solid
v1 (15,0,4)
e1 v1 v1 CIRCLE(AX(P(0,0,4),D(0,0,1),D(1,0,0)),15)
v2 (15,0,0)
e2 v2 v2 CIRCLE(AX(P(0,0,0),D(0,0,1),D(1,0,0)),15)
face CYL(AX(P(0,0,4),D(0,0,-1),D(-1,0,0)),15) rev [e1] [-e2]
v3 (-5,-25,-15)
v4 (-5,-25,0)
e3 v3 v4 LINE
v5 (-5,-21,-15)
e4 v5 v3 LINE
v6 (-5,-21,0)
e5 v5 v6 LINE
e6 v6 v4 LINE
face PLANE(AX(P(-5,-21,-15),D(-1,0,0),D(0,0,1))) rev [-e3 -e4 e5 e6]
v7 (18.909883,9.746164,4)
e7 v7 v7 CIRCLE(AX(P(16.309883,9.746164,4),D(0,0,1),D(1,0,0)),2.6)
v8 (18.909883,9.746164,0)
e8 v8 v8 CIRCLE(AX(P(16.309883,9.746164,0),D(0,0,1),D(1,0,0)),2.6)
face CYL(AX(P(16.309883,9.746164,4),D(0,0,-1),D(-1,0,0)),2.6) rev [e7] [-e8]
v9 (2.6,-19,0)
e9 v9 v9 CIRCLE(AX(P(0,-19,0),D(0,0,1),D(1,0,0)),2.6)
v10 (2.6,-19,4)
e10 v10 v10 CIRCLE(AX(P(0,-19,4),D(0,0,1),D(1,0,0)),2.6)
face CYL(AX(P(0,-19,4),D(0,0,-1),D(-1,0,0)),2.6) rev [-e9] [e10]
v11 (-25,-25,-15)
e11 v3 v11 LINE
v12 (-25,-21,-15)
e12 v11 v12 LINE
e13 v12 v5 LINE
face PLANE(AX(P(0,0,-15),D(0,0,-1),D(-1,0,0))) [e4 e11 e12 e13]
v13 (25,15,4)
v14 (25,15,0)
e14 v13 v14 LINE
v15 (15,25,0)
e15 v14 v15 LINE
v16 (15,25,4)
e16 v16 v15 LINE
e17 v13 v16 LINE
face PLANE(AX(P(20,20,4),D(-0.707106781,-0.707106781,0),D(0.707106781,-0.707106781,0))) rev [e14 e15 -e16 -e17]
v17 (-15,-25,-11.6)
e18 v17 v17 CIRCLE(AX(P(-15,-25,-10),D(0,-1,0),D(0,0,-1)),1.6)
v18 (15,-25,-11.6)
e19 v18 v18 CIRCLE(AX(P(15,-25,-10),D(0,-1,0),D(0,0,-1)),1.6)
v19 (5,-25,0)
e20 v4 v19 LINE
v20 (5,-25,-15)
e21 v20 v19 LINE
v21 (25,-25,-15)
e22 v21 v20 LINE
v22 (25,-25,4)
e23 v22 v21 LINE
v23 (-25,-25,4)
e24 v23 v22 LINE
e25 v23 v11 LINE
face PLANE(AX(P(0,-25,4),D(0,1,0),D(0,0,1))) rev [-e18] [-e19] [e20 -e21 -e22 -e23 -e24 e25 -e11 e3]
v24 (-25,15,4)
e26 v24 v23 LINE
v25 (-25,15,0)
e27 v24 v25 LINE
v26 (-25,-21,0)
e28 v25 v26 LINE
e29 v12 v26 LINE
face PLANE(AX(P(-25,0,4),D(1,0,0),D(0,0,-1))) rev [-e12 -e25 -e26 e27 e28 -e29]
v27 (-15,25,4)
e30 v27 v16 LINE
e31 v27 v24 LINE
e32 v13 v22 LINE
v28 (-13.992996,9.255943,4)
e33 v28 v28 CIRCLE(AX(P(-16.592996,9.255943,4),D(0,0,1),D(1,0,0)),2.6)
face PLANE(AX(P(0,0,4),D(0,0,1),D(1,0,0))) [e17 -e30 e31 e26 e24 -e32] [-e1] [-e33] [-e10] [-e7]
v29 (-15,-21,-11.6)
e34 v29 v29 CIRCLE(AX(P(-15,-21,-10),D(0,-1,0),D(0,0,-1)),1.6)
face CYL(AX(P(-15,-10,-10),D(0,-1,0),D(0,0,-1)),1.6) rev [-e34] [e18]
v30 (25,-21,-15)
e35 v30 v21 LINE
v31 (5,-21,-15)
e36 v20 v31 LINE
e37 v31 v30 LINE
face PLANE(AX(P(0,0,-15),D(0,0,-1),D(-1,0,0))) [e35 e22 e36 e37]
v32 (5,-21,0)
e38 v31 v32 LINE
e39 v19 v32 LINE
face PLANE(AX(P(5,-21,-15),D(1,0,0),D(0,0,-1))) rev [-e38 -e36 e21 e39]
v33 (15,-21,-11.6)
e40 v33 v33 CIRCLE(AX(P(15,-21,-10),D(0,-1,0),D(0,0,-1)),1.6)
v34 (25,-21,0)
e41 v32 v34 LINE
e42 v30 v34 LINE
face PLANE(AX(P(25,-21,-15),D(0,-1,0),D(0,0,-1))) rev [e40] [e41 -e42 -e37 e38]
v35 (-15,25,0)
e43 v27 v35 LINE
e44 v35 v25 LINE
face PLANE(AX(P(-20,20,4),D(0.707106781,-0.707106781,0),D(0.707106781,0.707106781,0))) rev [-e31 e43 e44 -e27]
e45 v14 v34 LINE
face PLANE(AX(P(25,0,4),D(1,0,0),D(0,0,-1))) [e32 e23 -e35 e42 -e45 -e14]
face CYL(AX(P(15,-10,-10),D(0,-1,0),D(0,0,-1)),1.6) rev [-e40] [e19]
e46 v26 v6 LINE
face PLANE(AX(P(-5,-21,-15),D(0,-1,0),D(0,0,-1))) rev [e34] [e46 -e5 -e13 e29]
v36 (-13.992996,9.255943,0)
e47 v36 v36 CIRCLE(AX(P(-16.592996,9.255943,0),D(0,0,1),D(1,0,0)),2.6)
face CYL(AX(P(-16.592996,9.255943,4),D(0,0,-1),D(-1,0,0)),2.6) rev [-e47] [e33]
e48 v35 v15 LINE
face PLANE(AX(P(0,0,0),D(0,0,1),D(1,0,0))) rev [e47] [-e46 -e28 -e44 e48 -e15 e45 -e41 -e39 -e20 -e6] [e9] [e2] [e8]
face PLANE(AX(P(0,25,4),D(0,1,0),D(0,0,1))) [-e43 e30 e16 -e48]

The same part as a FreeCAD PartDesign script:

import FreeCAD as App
import Part
import Sketcher

doc = App.newDocument("Part")
body = doc.addObject("PartDesign::Body", "Body")

# Sketch on XY plane
sketch1 = body.newObject("Sketcher::SketchObject", "Sketch")
sketch1.AttachmentSupport = (doc.getObject("XY_Plane"), [""])
sketch1.MapMode = "FlatFace"
sketch1.addGeometry(Part.LineSegment(App.Vector(-25, 15, 0), App.Vector(-25, -25, 0)), False)
sketch1.addGeometry(Part.LineSegment(App.Vector(-25, -25, 0), App.Vector(25, -25, 0)), False)
sketch1.addGeometry(Part.LineSegment(App.Vector(25, -25, 0), App.Vector(25, 15, 0)), False)
sketch1.addGeometry(Part.LineSegment(App.Vector(25, 15, 0), App.Vector(15, 25, 0)), False)
sketch1.addGeometry(Part.LineSegment(App.Vector(15, 25, 0), App.Vector(-15, 25, 0)), False)
sketch1.addGeometry(Part.LineSegment(App.Vector(-15, 25, 0), App.Vector(-25, 15, 0)), False)
sketch1.addGeometry(Part.Circle(App.Vector(0, -19, 0), App.Vector(0, 0, 1), 2.6), False)
sketch1.addGeometry(Part.Circle(App.Vector(-16.592996, 9.255943, 0), App.Vector(0, 0, 1), 2.6), False)
sketch1.addGeometry(Part.Circle(App.Vector(0, 0, 0), App.Vector(0, 0, 1), 15), False)
sketch1.addGeometry(Part.Circle(App.Vector(16.309883, 9.746164, 0), App.Vector(0, 0, 1), 2.6), False)
sketch1.addConstraint(Sketcher.Constraint("Coincident", 0, 2, 1, 1))
sketch1.addConstraint(Sketcher.Constraint("Coincident", 1, 2, 2, 1))
sketch1.addConstraint(Sketcher.Constraint("Coincident", 2, 2, 3, 1))
sketch1.addConstraint(Sketcher.Constraint("Coincident", 3, 2, 4, 1))
sketch1.addConstraint(Sketcher.Constraint("Coincident", 4, 2, 5, 1))
sketch1.addConstraint(Sketcher.Constraint("Coincident", 5, 2, 0, 1))
sketch1.addConstraint(Sketcher.Constraint("Vertical", 0))
sketch1.addConstraint(Sketcher.Constraint("Horizontal", 1))
sketch1.addConstraint(Sketcher.Constraint("Vertical", 2))
sketch1.addConstraint(Sketcher.Constraint("Horizontal", 4))
sketch1.addConstraint(Sketcher.Constraint("Coincident", 8, 3, -1, 1))
sketch1.addConstraint(Sketcher.Constraint("Equal", 6, 7))
sketch1.addConstraint(Sketcher.Constraint("Equal", 7, 9))
sketch1.addConstraint(Sketcher.Constraint("Symmetric", 2, 2, 5, 2, -2))
sketch1.addConstraint(Sketcher.Constraint("PointOnObject", 6, 3, -2))
sketch1.addConstraint(Sketcher.Constraint("Perpendicular", 3, 5))
sketch1.addConstraint(Sketcher.Constraint("Equal", 3, 5))
sketch1.addConstraint(Sketcher.Constraint("Diameter", 8, 30.0))
sketch1.addConstraint(Sketcher.Constraint("Diameter", 6, 5.2))
sketch1.addConstraint(Sketcher.Constraint("DistanceX", 1, 1, 1, 2, 50.0))
sketch1.addConstraint(Sketcher.Constraint("DistanceX", 4, 2, 4, 1, 30.0))
sketch1.addConstraint(Sketcher.Constraint("DistanceY", 0, 2, 0, 1, 40.0))
sketch1.addConstraint(Sketcher.Constraint("DistanceY", 6, 3, -1, 1, 19.0))
sketch1.addConstraint(Sketcher.Constraint("DistanceY", 0, 2, -1, 1, 25.0))
sketch1.addConstraint(Sketcher.Constraint("DistanceX", 7, 3, 9, 3, 32.902879))
sketch1.addConstraint(Sketcher.Constraint("DistanceY", 7, 3, 9, 3, 0.490221))
sketch1.addConstraint(Sketcher.Constraint("DistanceX", 7, 3, -1, 1, 16.592996))
sketch1.addConstraint(Sketcher.Constraint("DistanceY", -1, 1, 7, 3, 9.255943))
pad1 = body.newObject("PartDesign::Pad", "Pad")
pad1.Profile = sketch1
pad1.Length = 4

# Sketch on XY plane
sketch2 = body.newObject("Sketcher::SketchObject", "Sketch001")
sketch2.AttachmentSupport = (doc.getObject("XY_Plane"), [""])
sketch2.MapMode = "FlatFace"
sketch2.addGeometry(Part.LineSegment(App.Vector(25, -21, 0), App.Vector(25, -25, 0)), False)
sketch2.addGeometry(Part.LineSegment(App.Vector(25, -25, 0), App.Vector(5, -25, 0)), False)
sketch2.addGeometry(Part.LineSegment(App.Vector(5, -25, 0), App.Vector(5, -21, 0)), False)
sketch2.addGeometry(Part.LineSegment(App.Vector(5, -21, 0), App.Vector(25, -21, 0)), False)
sketch2.addGeometry(Part.LineSegment(App.Vector(-5, -21, 0), App.Vector(-5, -25, 0)), False)
sketch2.addGeometry(Part.LineSegment(App.Vector(-5, -25, 0), App.Vector(-25, -25, 0)), False)
sketch2.addGeometry(Part.LineSegment(App.Vector(-25, -25, 0), App.Vector(-25, -21, 0)), False)
sketch2.addGeometry(Part.LineSegment(App.Vector(-25, -21, 0), App.Vector(-5, -21, 0)), False)
sketch2.addConstraint(Sketcher.Constraint("Coincident", 0, 2, 1, 1))
sketch2.addConstraint(Sketcher.Constraint("Coincident", 1, 2, 2, 1))
sketch2.addConstraint(Sketcher.Constraint("Coincident", 2, 2, 3, 1))
sketch2.addConstraint(Sketcher.Constraint("Coincident", 3, 2, 0, 1))
sketch2.addConstraint(Sketcher.Constraint("Coincident", 4, 2, 5, 1))
sketch2.addConstraint(Sketcher.Constraint("Coincident", 5, 2, 6, 1))
sketch2.addConstraint(Sketcher.Constraint("Coincident", 6, 2, 7, 1))
sketch2.addConstraint(Sketcher.Constraint("Coincident", 7, 2, 4, 1))
sketch2.addConstraint(Sketcher.Constraint("Vertical", 0))
sketch2.addConstraint(Sketcher.Constraint("Horizontal", 1))
sketch2.addConstraint(Sketcher.Constraint("Vertical", 2))
sketch2.addConstraint(Sketcher.Constraint("Horizontal", 3))
sketch2.addConstraint(Sketcher.Constraint("Vertical", 4))
sketch2.addConstraint(Sketcher.Constraint("Horizontal", 5))
sketch2.addConstraint(Sketcher.Constraint("Vertical", 6))
sketch2.addConstraint(Sketcher.Constraint("Horizontal", 7))
sketch2.addConstraint(Sketcher.Constraint("Symmetric", 1, 2, 4, 2, -2))
sketch2.addConstraint(Sketcher.Constraint("Symmetric", 3, 2, 6, 2, -2))
sketch2.addConstraint(Sketcher.Constraint("DistanceX", 1, 2, 1, 1, 20.0))
sketch2.addConstraint(Sketcher.Constraint("DistanceY", 0, 2, 0, 1, 4.0))
sketch2.addConstraint(Sketcher.Constraint("DistanceX", -1, 1, 0, 2, 25.0))
sketch2.addConstraint(Sketcher.Constraint("DistanceY", 0, 2, -1, 1, 25.0))
pad2 = body.newObject("PartDesign::Pad", "Pad001")
pad2.Profile = sketch2
pad2.Length = 15
pad2.Reversed = True

# Sketch on XZ plane
sketch3 = body.newObject("Sketcher::SketchObject", "Sketch002")
sketch3.AttachmentSupport = (doc.getObject("XZ_Plane"), [""])
sketch3.MapMode = "FlatFace"
sketch3.AttachmentOffset = App.Placement(App.Vector(0, 0, 25), App.Rotation())
sketch3.addGeometry(Part.Circle(App.Vector(-15, -10, 0), App.Vector(0, 0, 1), 1.6), False)
sketch3.addGeometry(Part.Circle(App.Vector(15, -10, 0), App.Vector(0, 0, 1), 1.6), False)
sketch3.addConstraint(Sketcher.Constraint("Equal", 0, 1))
sketch3.addConstraint(Sketcher.Constraint("Symmetric", 0, 3, 1, 3, -2))
sketch3.addConstraint(Sketcher.Constraint("Diameter", 0, 3.2))
sketch3.addConstraint(Sketcher.Constraint("DistanceX", 0, 3, -1, 1, 15.0))
sketch3.addConstraint(Sketcher.Constraint("DistanceY", 0, 3, -1, 1, 10.0))
pocket1 = body.newObject("PartDesign::Pocket", "Pocket")
pocket1.Profile = sketch3
pocket1.Length = 15

doc.recompute()
